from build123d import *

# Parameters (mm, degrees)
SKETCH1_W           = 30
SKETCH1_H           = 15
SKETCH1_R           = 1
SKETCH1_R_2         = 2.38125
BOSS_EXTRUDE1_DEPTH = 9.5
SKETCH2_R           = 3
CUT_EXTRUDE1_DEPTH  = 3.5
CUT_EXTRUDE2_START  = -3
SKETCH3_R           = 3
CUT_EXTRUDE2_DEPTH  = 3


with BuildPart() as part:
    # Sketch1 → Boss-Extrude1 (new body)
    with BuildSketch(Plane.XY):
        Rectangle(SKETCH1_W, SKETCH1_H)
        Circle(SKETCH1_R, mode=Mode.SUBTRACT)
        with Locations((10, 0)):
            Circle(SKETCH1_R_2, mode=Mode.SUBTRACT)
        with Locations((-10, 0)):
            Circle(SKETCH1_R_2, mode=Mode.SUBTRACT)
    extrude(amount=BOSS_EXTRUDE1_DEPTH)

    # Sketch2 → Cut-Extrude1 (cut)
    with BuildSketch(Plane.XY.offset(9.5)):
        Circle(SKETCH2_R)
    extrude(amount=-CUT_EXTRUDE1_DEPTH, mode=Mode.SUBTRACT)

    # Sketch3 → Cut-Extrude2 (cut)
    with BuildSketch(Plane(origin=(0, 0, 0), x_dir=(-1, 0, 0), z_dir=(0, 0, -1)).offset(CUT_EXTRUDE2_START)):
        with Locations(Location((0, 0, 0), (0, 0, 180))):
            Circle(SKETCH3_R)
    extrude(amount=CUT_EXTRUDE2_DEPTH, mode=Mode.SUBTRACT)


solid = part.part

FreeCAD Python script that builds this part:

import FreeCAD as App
import Part
import Sketcher
Q = App.Units.Quantity

doc = App.newDocument("Part")
body = doc.addObject("PartDesign::Body", "Body")

sketch1 = doc.addObject("Sketcher::SketchObject", "Sketch")
body.addObject(sketch1)
sketch1.AttachmentSupport = (doc.XY_Plane, [""])
sketch1.MapMode = "FlatFace"
sketch1.addGeometry(Part.LineSegment(App.Vector(-15, 7.5, 0), App.Vector(-15, -7.5, 0)), False)
sketch1.addGeometry(Part.LineSegment(App.Vector(-15, -7.5, 0), App.Vector(15, -7.5, 0)), False)
sketch1.addGeometry(Part.LineSegment(App.Vector(15, -7.5, 0), App.Vector(15, 7.5, 0)), False)
sketch1.addGeometry(Part.LineSegment(App.Vector(15, 7.5, 0), App.Vector(-15, 7.5, 0)), False)
sketch1.addGeometry(Part.Circle(App.Vector(-10, 0, 0), App.Vector(0, 0, 1), 2.4), False)
sketch1.addGeometry(Part.Circle(App.Vector(0, 0, 0), App.Vector(0, 0, 1), 1), False)
sketch1.addGeometry(Part.Circle(App.Vector(10, 0, 0), App.Vector(0, 0, 1), 2.4), False)
sketch1.addConstraint(Sketcher.Constraint("Coincident", 0, 2, 1, 1))
sketch1.addConstraint(Sketcher.Constraint("Coincident", 1, 2, 2, 1))
sketch1.addConstraint(Sketcher.Constraint("Coincident", 2, 2, 3, 1))
sketch1.addConstraint(Sketcher.Constraint("Coincident", 3, 2, 0, 1))
sketch1.addConstraint(Sketcher.Constraint("Vertical", 0))
sketch1.addConstraint(Sketcher.Constraint("Horizontal", 1))
sketch1.addConstraint(Sketcher.Constraint("Vertical", 2))
sketch1.addConstraint(Sketcher.Constraint("Horizontal", 3))
sketch1.addConstraint(Sketcher.Constraint("Coincident", 5, 3, -1, 1))
sketch1.addConstraint(Sketcher.Constraint("Equal", 4, 6))
sketch1.addConstraint(Sketcher.Constraint("Symmetric", 4, 3, 6, 3, -1, 1))
sketch1.addConstraint(Sketcher.Constraint("Symmetric", 0, 2, 2, 2, -1, 1))
sketch1.addConstraint(Sketcher.Constraint("PointOnObject", 4, 3, -1))
sketch1.addConstraint(Sketcher.Constraint("Diameter", 5, Q("2 mm")))
sketch1.addConstraint(Sketcher.Constraint("DistanceX", 1, 1, 1, 2, Q("30 mm")))
sketch1.addConstraint(Sketcher.Constraint("DistanceY", 0, 2, 0, 1, Q("15 mm")))
sketch1.addConstraint(Sketcher.Constraint("DistanceX", 4, 3, -1, 1, Q("10 mm")))
sketch1.addConstraint(Sketcher.Constraint("Diameter", 4, Q("4.7625 mm")))
pad1 = doc.addObject("PartDesign::Pad", "Pad")
body.addObject(pad1)
pad1.Profile = sketch1
pad1.Length = 9.5

sketch2 = doc.addObject("Sketcher::SketchObject", "Sketch001")
body.addObject(sketch2)
sketch2.AttachmentSupport = (doc.XY_Plane, [""])
sketch2.MapMode = "FlatFace"
sketch2.AttachmentOffset = App.Placement(App.Vector(0, 0, 9.5), App.Rotation())
sketch2.addGeometry(Part.Circle(App.Vector(0, 0, 0), App.Vector(0, 0, 1), 3), False)
sketch2.addConstraint(Sketcher.Constraint("Coincident", 0, 3, -1, 1))
sketch2.addConstraint(Sketcher.Constraint("Diameter", 0, Q("6 mm")))
pocket1 = doc.addObject("PartDesign::Pocket", "Pocket")
body.addObject(pocket1)
pocket1.Profile = sketch2
pocket1.Length = 3.5

sketch3 = doc.addObject("Sketcher::SketchObject", "Sketch002")
body.addObject(sketch3)
sketch3.AttachmentSupport = (doc.XY_Plane, [""])
sketch3.MapMode = "FlatFace"
sketch3.AttachmentOffset = App.Placement(App.Vector(0, 0, 3), App.Rotation())
sketch3.addGeometry(Part.Circle(App.Vector(0, 0, 0), App.Vector(0, 0, 1), 3), False)
sketch3.addConstraint(Sketcher.Constraint("Coincident", 0, 3, -1, 1))
sketch3.addConstraint(Sketcher.Constraint("Diameter", 0, Q("6 mm")))
pocket2 = doc.addObject("PartDesign::Pocket", "Pocket001")
body.addObject(pocket2)
pocket2.Profile = sketch3
pocket2.Length = 3

doc.recompute()
